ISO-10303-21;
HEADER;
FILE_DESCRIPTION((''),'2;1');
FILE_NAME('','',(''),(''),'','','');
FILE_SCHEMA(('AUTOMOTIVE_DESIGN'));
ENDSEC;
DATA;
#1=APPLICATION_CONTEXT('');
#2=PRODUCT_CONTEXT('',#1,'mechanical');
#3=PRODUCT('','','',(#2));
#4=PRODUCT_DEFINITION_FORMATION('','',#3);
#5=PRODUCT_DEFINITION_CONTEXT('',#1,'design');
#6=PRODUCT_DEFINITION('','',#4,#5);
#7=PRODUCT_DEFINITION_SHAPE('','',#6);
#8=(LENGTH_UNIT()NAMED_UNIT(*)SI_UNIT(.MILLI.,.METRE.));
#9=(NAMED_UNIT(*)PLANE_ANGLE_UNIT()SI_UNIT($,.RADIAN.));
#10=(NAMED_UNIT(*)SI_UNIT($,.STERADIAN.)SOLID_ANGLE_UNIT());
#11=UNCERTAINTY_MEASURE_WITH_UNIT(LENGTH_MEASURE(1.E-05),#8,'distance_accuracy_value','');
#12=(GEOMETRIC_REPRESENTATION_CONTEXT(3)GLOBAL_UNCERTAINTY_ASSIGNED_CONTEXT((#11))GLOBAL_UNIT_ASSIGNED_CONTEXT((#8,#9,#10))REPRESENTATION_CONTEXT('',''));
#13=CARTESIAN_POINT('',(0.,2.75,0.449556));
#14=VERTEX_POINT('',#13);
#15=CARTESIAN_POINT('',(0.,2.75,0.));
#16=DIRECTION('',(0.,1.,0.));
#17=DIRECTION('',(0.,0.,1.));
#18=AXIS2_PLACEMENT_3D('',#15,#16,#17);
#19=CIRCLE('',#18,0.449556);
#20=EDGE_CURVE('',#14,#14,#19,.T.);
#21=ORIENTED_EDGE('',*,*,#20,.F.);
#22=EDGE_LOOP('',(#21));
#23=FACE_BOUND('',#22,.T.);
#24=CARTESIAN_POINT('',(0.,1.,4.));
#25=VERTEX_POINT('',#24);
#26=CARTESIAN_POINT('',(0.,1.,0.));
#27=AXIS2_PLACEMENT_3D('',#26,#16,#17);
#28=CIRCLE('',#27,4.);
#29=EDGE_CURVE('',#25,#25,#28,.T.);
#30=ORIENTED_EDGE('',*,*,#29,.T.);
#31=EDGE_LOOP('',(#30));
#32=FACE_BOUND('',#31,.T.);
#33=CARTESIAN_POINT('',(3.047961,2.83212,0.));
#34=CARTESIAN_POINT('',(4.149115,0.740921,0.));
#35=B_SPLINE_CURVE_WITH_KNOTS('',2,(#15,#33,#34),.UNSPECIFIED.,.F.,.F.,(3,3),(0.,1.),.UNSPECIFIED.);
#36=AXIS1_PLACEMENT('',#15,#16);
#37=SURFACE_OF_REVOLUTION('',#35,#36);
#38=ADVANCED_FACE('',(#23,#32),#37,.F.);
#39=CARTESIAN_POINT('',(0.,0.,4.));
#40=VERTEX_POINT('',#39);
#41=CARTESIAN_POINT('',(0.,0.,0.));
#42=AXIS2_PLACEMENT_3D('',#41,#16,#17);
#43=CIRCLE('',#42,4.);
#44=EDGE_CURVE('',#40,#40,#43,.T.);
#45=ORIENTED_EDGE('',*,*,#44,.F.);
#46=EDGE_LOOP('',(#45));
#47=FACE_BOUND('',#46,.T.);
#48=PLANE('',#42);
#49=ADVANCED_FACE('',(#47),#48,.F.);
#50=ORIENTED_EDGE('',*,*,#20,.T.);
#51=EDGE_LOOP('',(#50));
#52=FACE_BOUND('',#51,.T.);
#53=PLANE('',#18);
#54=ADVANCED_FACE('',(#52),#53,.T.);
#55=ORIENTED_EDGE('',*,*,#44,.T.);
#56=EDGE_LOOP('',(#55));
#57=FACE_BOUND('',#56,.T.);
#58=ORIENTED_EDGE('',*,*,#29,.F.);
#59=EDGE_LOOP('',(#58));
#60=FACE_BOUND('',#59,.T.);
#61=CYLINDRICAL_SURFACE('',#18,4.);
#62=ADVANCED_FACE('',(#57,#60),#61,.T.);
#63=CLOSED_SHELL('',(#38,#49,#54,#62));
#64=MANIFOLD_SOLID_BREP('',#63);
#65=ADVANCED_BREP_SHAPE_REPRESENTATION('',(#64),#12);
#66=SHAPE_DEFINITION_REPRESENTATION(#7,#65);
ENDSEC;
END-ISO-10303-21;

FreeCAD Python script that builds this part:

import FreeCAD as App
import Part
import Sketcher
from FreeCAD import Vector

doc = App.newDocument("Part")
params = doc.addObject("Spreadsheet::Sheet", "Params")
for row, (alias, value) in enumerate([
    ("revolution_angle", "360 deg"),
], start=1):
    params.set(f"A{row}", alias)
    params.set(f"B{row}", "=" + value)
    params.setAlias(f"B{row}", alias)

body = doc.addObject("PartDesign::Body", "Body")

# Sketch on XY plane
sketch1 = body.newObject("Sketcher::SketchObject", "Sketch")
sketch1.AttachmentSupport = (doc.getObject("XY_Plane"), [""])
sketch1.MapMode = "FlatFace"
sketch1.addGeometry(Part.LineSegment(Vector(0, 2.75, 0), Vector(0, 0, 0)), False)
sketch1.addGeometry(Part.LineSegment(Vector(0, 0, 0), Vector(4, 0, 0)), False)
sketch1.addGeometry(Part.LineSegment(Vector(4, 0, 0), Vector(4, 1, 0)), False)
sketch1.addGeometry(Part.BSplineCurve([Vector(0.449556, 2.75, 0), Vector(2.945294, 2.679348, 0), Vector(4, 1, 0)], [3, 3], [0.075570808, 0.93592127], False, 2, [1, 1, 1], False), False)
sketch1.addGeometry(Part.LineSegment(Vector(0.449556, 2.75, 0), Vector(0, 2.75, 0)), False)
sketch1.addConstraint(Sketcher.Constraint("Block", 3))
sketch1.addConstraint(Sketcher.Constraint("Coincident", 0, 2, 1, 1))
sketch1.addConstraint(Sketcher.Constraint("Coincident", 1, 2, 2, 1))
sketch1.addConstraint(Sketcher.Constraint("Coincident", 2, 2, 3, 2))
sketch1.addConstraint(Sketcher.Constraint("Coincident", 3, 1, 4, 1))
sketch1.addConstraint(Sketcher.Constraint("Coincident", 4, 2, 0, 1))
sketch1.addConstraint(Sketcher.Constraint("Vertical", 0))
sketch1.addConstraint(Sketcher.Constraint("Horizontal", 1))
sketch1.addConstraint(Sketcher.Constraint("Vertical", 2))
sketch1.addConstraint(Sketcher.Constraint("Horizontal", 4))
sketch1.addConstraint(Sketcher.Constraint("Coincident", 0, 2, -1, 1))
revolution = body.newObject("PartDesign::Revolution", "Revolution")
revolution.Profile = sketch1
revolution.ReferenceAxis = (sketch1, ["V_Axis"])
revolution.setExpression("Angle", "Params.revolution_angle")

doc.recompute()
